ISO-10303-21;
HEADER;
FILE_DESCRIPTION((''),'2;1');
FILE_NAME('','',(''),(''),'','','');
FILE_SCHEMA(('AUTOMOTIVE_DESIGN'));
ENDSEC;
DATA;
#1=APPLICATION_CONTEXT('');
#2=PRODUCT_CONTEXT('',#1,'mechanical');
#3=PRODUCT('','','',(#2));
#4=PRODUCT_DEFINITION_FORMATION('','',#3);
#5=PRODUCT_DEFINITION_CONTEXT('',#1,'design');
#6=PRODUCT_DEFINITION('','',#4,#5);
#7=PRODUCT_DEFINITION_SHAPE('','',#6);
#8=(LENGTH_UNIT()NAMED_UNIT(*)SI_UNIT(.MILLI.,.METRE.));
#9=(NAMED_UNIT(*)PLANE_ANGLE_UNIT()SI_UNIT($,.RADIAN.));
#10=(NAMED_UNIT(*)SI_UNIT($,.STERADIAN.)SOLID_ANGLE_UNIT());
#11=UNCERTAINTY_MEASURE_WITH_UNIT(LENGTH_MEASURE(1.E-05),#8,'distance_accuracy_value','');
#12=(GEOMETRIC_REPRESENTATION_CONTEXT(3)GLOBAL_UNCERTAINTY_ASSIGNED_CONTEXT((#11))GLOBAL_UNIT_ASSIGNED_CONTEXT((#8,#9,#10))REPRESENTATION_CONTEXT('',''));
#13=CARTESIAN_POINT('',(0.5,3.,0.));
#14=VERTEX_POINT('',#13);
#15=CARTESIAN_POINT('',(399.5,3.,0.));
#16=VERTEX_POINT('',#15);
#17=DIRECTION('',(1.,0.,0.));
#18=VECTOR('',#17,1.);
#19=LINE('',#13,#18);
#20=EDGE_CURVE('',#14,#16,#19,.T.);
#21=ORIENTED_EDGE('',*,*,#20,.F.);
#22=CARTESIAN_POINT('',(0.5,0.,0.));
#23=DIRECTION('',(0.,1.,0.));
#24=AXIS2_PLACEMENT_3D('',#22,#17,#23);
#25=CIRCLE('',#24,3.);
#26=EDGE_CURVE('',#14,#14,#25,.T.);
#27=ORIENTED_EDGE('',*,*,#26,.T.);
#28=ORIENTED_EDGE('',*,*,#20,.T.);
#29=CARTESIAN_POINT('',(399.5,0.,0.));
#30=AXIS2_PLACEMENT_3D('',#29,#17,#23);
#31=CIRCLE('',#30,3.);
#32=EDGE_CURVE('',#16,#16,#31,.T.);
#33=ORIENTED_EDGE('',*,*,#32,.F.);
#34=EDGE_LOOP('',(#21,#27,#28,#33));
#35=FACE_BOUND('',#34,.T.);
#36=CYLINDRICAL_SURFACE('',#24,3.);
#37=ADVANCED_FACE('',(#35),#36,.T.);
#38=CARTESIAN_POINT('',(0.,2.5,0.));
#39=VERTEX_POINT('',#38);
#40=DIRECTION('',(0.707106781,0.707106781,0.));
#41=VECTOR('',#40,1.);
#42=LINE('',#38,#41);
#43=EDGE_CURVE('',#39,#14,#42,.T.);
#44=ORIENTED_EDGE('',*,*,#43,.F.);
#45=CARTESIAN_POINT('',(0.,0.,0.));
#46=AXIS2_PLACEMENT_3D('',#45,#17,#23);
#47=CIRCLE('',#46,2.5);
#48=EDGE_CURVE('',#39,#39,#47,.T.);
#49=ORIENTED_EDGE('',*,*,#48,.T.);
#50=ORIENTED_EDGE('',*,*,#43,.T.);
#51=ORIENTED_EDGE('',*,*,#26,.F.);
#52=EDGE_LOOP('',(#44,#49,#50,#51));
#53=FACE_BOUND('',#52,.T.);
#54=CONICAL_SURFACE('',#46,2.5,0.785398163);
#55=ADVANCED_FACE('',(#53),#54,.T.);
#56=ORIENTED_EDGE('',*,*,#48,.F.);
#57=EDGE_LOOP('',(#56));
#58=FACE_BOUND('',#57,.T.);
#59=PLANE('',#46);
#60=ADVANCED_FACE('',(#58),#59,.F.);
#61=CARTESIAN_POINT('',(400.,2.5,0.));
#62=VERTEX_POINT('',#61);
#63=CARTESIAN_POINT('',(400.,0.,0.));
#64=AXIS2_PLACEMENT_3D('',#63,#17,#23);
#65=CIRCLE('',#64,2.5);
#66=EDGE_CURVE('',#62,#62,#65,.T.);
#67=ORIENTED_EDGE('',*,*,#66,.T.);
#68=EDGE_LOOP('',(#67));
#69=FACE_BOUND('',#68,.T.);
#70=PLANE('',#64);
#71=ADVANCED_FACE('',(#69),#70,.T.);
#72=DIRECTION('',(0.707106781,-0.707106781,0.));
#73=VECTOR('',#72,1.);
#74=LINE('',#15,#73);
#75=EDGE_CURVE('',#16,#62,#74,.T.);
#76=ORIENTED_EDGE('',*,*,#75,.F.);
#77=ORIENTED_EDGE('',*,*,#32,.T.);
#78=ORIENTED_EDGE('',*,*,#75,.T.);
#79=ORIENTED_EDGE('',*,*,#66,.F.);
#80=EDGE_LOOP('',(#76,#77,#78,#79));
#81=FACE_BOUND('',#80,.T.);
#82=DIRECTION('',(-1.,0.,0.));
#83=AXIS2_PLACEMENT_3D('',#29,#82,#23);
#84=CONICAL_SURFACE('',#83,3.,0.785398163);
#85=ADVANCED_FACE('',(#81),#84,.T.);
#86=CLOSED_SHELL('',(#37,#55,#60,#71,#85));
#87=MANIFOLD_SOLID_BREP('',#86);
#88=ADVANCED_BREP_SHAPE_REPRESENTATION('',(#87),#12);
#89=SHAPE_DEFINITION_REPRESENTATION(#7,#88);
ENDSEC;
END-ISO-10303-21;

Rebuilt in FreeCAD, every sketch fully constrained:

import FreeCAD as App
import Part
import Sketcher
Q = App.Units.Quantity

doc = App.newDocument("Part")
params = doc.addObject("Spreadsheet::Sheet", "Params")
for row, (alias, value) in enumerate([
    ("sketch1_width", "400 mm"),
    ("sketch1_width2", "399 mm"),
    ("sketch1_height", "2.5 mm"),
    ("revolution_angle", "360 deg"),
], start=1):
    params.set(f"A{row}", alias)
    params.set(f"B{row}", "=" + value)
    params.setAlias(f"B{row}", alias)

body = doc.addObject("PartDesign::Body", "Body")

# Sketch on XY plane
sketch1 = doc.addObject("Sketcher::SketchObject", "Sketch")
body.addObject(sketch1)
sketch1.AttachmentSupport = (doc.XY_Plane, [""])
sketch1.MapMode = "FlatFace"
sketch1.addGeometry([
    Part.LineSegment(App.Vector(0, 0, 0), App.Vector(400, 0, 0)),  # 0
    Part.LineSegment(App.Vector(400, 0, 0), App.Vector(400, 2.5, 0)),  # 1
    Part.LineSegment(App.Vector(400, 2.5, 0), App.Vector(399.5, 3, 0)),  # 2
    Part.LineSegment(App.Vector(399.5, 3, 0), App.Vector(0.5, 3, 0)),  # 3
    Part.LineSegment(App.Vector(0.5, 3, 0), App.Vector(0, 2.5, 0)),  # 4
    Part.LineSegment(App.Vector(0, 2.5, 0), App.Vector(0, 0, 0)),  # 5
], False)
sketch1.addConstraint([
    Sketcher.Constraint("Coincident", 0, 2, 1, 1),
    Sketcher.Constraint("Coincident", 1, 2, 2, 1),
    Sketcher.Constraint("Coincident", 2, 2, 3, 1),
    Sketcher.Constraint("Coincident", 3, 2, 4, 1),
    Sketcher.Constraint("Coincident", 4, 2, 5, 1),
    Sketcher.Constraint("Coincident", 5, 2, 0, 1),
    Sketcher.Constraint("Horizontal", 0),
    Sketcher.Constraint("Vertical", 1),
    Sketcher.Constraint("Horizontal", 3),
    Sketcher.Constraint("Vertical", 5),
    Sketcher.Constraint("Coincident", 5, 2, -1, 1),
    Sketcher.Constraint("Perpendicular", 2, 4),
    Sketcher.Constraint("Horizontal", 1, 2, 4, 2),
    Sketcher.Constraint("Equal", 2, 4),
    Sketcher.Constraint("DistanceX", 0, 1, 0, 2, Q("400 mm")),
    Sketcher.Constraint("DistanceX", 3, 2, 3, 1, Q("399 mm")),
    Sketcher.Constraint("DistanceY", 1, 1, 1, 2, Q("2.5 mm")),
])
sketch1.setExpression("Constraints[14]", "Params.sketch1_width")
sketch1.setExpression("Constraints[15]", "Params.sketch1_width2")
sketch1.setExpression("Constraints[16]", "Params.sketch1_height")
revolution = doc.addObject("PartDesign::Revolution", "Revolution")
body.addObject(revolution)
revolution.Profile = sketch1
revolution.ReferenceAxis = (sketch1, ["H_Axis"])
revolution.setExpression("Angle", "Params.revolution_angle")

doc.recompute()
